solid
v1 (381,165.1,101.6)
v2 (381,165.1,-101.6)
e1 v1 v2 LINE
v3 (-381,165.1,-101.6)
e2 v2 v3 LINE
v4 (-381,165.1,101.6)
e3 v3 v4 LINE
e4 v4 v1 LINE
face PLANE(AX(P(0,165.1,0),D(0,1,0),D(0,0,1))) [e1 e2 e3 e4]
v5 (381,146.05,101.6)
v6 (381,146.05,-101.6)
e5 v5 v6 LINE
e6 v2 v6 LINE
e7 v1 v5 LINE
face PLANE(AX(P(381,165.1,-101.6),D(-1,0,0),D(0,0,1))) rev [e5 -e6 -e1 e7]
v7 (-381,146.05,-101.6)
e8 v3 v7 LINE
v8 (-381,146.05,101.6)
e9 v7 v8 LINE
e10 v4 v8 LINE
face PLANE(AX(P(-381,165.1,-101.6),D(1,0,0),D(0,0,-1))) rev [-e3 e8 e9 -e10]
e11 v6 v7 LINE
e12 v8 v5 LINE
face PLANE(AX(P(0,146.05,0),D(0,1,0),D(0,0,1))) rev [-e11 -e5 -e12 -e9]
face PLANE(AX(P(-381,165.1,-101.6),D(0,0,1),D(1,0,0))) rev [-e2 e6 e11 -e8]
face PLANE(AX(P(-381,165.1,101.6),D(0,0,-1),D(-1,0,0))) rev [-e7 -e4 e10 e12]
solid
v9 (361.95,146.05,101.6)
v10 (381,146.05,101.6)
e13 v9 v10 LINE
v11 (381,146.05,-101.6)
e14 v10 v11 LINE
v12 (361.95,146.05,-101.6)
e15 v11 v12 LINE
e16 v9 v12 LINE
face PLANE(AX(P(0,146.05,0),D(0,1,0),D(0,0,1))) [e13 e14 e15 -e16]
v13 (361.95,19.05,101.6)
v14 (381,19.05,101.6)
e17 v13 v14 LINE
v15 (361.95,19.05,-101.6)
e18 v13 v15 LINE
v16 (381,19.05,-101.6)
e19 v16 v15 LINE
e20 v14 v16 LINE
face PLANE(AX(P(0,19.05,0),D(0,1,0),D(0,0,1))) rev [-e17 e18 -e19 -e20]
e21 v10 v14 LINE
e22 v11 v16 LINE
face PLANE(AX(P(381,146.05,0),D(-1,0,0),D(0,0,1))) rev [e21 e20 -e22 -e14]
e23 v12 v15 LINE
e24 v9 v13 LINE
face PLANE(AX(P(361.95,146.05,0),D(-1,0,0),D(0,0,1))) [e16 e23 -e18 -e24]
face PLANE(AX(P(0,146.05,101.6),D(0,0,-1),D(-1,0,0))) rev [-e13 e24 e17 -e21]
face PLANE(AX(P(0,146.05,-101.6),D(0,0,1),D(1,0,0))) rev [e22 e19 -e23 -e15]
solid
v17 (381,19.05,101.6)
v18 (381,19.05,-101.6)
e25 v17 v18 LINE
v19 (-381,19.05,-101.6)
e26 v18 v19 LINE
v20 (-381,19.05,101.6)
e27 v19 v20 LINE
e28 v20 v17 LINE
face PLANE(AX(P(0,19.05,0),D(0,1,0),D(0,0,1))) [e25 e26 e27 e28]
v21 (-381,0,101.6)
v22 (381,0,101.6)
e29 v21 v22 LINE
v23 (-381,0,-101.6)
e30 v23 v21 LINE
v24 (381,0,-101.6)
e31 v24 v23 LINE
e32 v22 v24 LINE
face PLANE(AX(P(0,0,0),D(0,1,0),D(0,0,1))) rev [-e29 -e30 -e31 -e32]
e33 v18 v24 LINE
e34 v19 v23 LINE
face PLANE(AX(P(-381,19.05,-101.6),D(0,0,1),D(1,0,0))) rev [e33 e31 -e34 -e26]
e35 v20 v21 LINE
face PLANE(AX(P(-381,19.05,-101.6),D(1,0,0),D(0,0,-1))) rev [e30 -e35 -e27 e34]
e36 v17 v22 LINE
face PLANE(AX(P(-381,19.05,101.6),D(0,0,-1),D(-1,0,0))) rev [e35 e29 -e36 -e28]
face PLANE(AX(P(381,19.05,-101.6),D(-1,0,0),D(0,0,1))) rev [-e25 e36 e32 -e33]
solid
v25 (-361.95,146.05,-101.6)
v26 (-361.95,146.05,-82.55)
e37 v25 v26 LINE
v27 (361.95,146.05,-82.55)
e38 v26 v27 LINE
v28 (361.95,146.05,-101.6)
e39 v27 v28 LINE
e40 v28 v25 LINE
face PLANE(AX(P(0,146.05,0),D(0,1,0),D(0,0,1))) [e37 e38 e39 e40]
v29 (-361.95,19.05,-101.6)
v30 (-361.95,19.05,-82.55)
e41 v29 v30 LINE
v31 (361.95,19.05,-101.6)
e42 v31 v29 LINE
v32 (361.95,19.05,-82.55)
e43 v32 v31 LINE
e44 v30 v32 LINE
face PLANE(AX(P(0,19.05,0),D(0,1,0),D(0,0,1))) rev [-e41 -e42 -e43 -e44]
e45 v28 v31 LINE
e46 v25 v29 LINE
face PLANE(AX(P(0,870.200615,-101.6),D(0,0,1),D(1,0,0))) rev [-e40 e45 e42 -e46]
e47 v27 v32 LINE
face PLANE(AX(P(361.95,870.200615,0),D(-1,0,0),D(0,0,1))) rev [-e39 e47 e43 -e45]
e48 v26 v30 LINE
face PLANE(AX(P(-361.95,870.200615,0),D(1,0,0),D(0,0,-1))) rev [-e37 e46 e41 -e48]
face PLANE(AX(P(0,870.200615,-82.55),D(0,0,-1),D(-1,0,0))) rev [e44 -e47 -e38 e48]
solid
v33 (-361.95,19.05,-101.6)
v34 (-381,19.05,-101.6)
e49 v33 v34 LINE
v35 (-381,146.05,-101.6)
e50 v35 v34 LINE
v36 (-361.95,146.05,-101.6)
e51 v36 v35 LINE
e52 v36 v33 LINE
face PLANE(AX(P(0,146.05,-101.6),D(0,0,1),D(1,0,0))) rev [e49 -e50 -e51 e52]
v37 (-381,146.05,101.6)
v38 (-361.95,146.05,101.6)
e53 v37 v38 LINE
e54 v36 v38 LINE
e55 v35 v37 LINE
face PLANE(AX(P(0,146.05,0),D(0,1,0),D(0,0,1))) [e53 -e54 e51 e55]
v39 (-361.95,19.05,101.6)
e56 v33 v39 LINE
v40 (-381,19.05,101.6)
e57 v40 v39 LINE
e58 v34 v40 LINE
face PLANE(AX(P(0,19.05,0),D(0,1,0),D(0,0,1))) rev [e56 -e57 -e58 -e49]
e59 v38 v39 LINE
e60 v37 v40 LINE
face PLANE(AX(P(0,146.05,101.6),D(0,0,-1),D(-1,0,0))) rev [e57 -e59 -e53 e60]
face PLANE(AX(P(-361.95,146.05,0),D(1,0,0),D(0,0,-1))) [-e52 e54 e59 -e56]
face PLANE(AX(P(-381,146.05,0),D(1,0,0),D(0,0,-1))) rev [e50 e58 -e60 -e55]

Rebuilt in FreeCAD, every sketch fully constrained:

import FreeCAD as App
import Part
import Sketcher

V = App.Vector
Q = App.Units.Quantity

doc = App.newDocument("Part")
params = doc.addObject("Spreadsheet::Sheet", "Params")
for row, (alias, value) in enumerate([
    ("sketch1_width", "30 in"),
    ("sketch1_height", "8 in"),
    ("pad1_length", "0.75 in"),
    ("sketch2_height", "8 in"),
    ("sketch2_width", "0.75 in"),
    ("pad2_length", "5 in"),
    ("sketch3_height", "8 in"),
    ("sketch3_width", "0.75 in"),
    ("pad3_length", "5 in"),
    ("sketch4_width", "28.5 in"),
    ("sketch4_height", "0.75 in"),
    ("pad4_length", "5 in"),
    ("sketch5_width", "30 in"),
    ("sketch5_height", "8 in"),
    ("pad5_length", "0.75 in"),
], start=1):
    params.set(f"A{row}", alias)
    params.set(f"B{row}", "=" + value)
    params.setAlias(f"B{row}", alias)

body = doc.addObject("PartDesign::Body", "Body")

# Sketch on XZ plane
sketch1 = body.newObject("Sketcher::SketchObject", "Sketch")
sketch1.AttachmentSupport = (doc.getObject("XZ_Plane"), [""])
sketch1.MapMode = "FlatFace"
sketch1.addGeometry([
    Part.LineSegment(V(-381, -102, 0), V(-381, 102, 0)),
    Part.LineSegment(V(-381, 102, 0), V(381, 102, 0)),
    Part.LineSegment(V(381, 102, 0), V(381, -102, 0)),
    Part.LineSegment(V(381, -102, 0), V(-381, -102, 0)),
], False)
sketch1.addConstraint([
    Sketcher.Constraint("Coincident", 0, 2, 1, 1),
    Sketcher.Constraint("Coincident", 1, 2, 2, 1),
    Sketcher.Constraint("Coincident", 2, 2, 3, 1),
    Sketcher.Constraint("Coincident", 3, 2, 0, 1),
    Sketcher.Constraint("Vertical", 0),
    Sketcher.Constraint("Horizontal", 1),
    Sketcher.Constraint("Vertical", 2),
    Sketcher.Constraint("Horizontal", 3),
    Sketcher.Constraint("Symmetric", 0, 2, 2, 2, -1, 1),
    Sketcher.Constraint("DistanceX", 1, 1, 1, 2, Q("30 in")),
    Sketcher.Constraint("DistanceY", 0, 1, 0, 2, Q("8 in")),
])
sketch1.setExpression("Constraints[9]", "Params.sketch1_width")
sketch1.setExpression("Constraints[10]", "Params.sketch1_height")
pad1 = body.newObject("PartDesign::Pad", "Pad")
pad1.Profile = sketch1
pad1.setExpression("Length", "Params.pad1_length")
pad1.Reversed = True
body2 = doc.addObject("PartDesign::Body", "Body001")

# Sketch on XZ plane
sketch2 = body2.newObject("Sketcher::SketchObject", "Sketch001")
sketch2.AttachmentSupport = (doc.getObject("XZ_Plane001"), [""])
sketch2.MapMode = "FlatFace"
sketch2.AttachmentOffset = App.Placement(V(0, 0, -0.75 * 25.4), App.Rotation())
sketch2.addGeometry([
    Part.LineSegment(V(-362, -102, 0), V(-381, -102, 0)),
    Part.LineSegment(V(-381, -102, 0), V(-381, 102, 0)),
    Part.LineSegment(V(-381, 102, 0), V(-362, 102, 0)),
    Part.LineSegment(V(-362, 102, 0), V(-362, -102, 0)),
], False)
sketch2.addConstraint([
    Sketcher.Constraint("Coincident", 0, 2, 1, 1),
    Sketcher.Constraint("Coincident", 1, 2, 2, 1),
    Sketcher.Constraint("Coincident", 2, 2, 3, 1),
    Sketcher.Constraint("Coincident", 3, 2, 0, 1),
    Sketcher.Constraint("Horizontal", 0),
    Sketcher.Constraint("Vertical", 1),
    Sketcher.Constraint("Horizontal", 2),
    Sketcher.Constraint("Vertical", 3),
    Sketcher.Constraint("DistanceY", 1, 1, 1, 2, Q("8 in")),
    Sketcher.Constraint("DistanceX", 0, 2, -1, 1, Q("15 in")),
    Sketcher.Constraint("DistanceY", 0, 2, -1, 1, Q("4 in")),
    Sketcher.Constraint("DistanceX", 0, 2, 0, 1, Q("0.75 in")),
])
sketch2.setExpression("Constraints[8]", "Params.sketch2_height")
sketch2.setExpression("Constraints[11]", "Params.sketch2_width")
pad2 = body2.newObject("PartDesign::Pad", "Pad001")
pad2.Profile = sketch2
pad2.setExpression("Length", "Params.pad2_length")
pad2.Reversed = True
body3 = doc.addObject("PartDesign::Body", "Body002")

# Sketch on XZ plane
sketch3 = body3.newObject("Sketcher::SketchObject", "Sketch002")
sketch3.AttachmentSupport = (doc.getObject("XZ_Plane002"), [""])
sketch3.MapMode = "FlatFace"
sketch3.AttachmentOffset = App.Placement(V(0, 0, -0.75 * 25.4), App.Rotation())
sketch3.addGeometry([
    Part.LineSegment(V(381, -102, 0), V(362, -102, 0)),
    Part.LineSegment(V(362, -102, 0), V(362, 102, 0)),
    Part.LineSegment(V(362, 102, 0), V(381, 102, 0)),
    Part.LineSegment(V(381, 102, 0), V(381, -102, 0)),
], False)
sketch3.addConstraint([
    Sketcher.Constraint("Coincident", 0, 2, 1, 1),
    Sketcher.Constraint("Coincident", 1, 2, 2, 1),
    Sketcher.Constraint("Coincident", 2, 2, 3, 1),
    Sketcher.Constraint("Coincident", 3, 2, 0, 1),
    Sketcher.Constraint("Horizontal", 0),
    Sketcher.Constraint("Vertical", 1),
    Sketcher.Constraint("Horizontal", 2),
    Sketcher.Constraint("Vertical", 3),
    Sketcher.Constraint("DistanceY", 1, 1, 1, 2, Q("8 in")),
    Sketcher.Constraint("DistanceY", 0, 2, -1, 1, Q("4 in")),
    Sketcher.Constraint("DistanceX", -1, 1, 2, 2, Q("15 in")),
    Sketcher.Constraint("DistanceX", 0, 2, 0, 1, Q("0.75 in")),
])
sketch3.setExpression("Constraints[8]", "Params.sketch3_height")
sketch3.setExpression("Constraints[11]", "Params.sketch3_width")
pad3 = body3.newObject("PartDesign::Pad", "Pad002")
pad3.Profile = sketch3
pad3.setExpression("Length", "Params.pad3_length")
pad3.Reversed = True
body4 = doc.addObject("PartDesign::Body", "Body003")

# Sketch on XZ plane
sketch4 = body4.newObject("Sketcher::SketchObject", "Sketch003")
sketch4.AttachmentSupport = (doc.getObject("XZ_Plane003"), [""])
sketch4.MapMode = "FlatFace"
sketch4.AttachmentOffset = App.Placement(V(0, 0, -0.75 * 25.4), App.Rotation())
sketch4.addGeometry([
    Part.LineSegment(V(-362, -102, 0), V(-362, -83, 0)),
    Part.LineSegment(V(-362, -83, 0), V(362, -83, 0)),
    Part.LineSegment(V(362, -83, 0), V(362, -102, 0)),
    Part.LineSegment(V(362, -102, 0), V(-362, -102, 0)),
], False)
sketch4.addConstraint([
    Sketcher.Constraint("Coincident", 0, 2, 1, 1),
    Sketcher.Constraint("Coincident", 1, 2, 2, 1),
    Sketcher.Constraint("Coincident", 2, 2, 3, 1),
    Sketcher.Constraint("Coincident", 3, 2, 0, 1),
    Sketcher.Constraint("Vertical", 0),
    Sketcher.Constraint("Horizontal", 1),
    Sketcher.Constraint("Vertical", 2),
    Sketcher.Constraint("Horizontal", 3),
    Sketcher.Constraint("DistanceX", 1, 1, 1, 2, Q("28.5 in")),
    Sketcher.Constraint("DistanceY", 2, 2, -1, 1, Q("4 in")),
    Sketcher.Constraint("DistanceY", 0, 1, 0, 2, Q("0.75 in")),
    Sketcher.Constraint("DistanceX", 0, 2, -1, 1, Q("14.25 in")),
])
sketch4.setExpression("Constraints[8]", "Params.sketch4_width")
sketch4.setExpression("Constraints[10]", "Params.sketch4_height")
pad4 = body4.newObject("PartDesign::Pad", "Pad003")
pad4.Profile = sketch4
pad4.setExpression("Length", "Params.pad4_length")
pad4.Reversed = True
body5 = doc.addObject("PartDesign::Body", "Body004")

# Sketch on XZ plane
sketch5 = body5.newObject("Sketcher::SketchObject", "Sketch004")
sketch5.AttachmentSupport = (doc.getObject("XZ_Plane004"), [""])
sketch5.MapMode = "FlatFace"
sketch5.AttachmentOffset = App.Placement(V(0, 0, -5.75 * 25.4), App.Rotation())
sketch5.addGeometry([
    Part.LineSegment(V(-381, -102, 0), V(-381, 102, 0)),
    Part.LineSegment(V(-381, 102, 0), V(381, 102, 0)),
    Part.LineSegment(V(381, 102, 0), V(381, -102, 0)),
    Part.LineSegment(V(381, -102, 0), V(-381, -102, 0)),
], False)
sketch5.addConstraint([
    Sketcher.Constraint("Coincident", 0, 2, 1, 1),
    Sketcher.Constraint("Coincident", 1, 2, 2, 1),
    Sketcher.Constraint("Coincident", 2, 2, 3, 1),
    Sketcher.Constraint("Coincident", 3, 2, 0, 1),
    Sketcher.Constraint("Vertical", 0),
    Sketcher.Constraint("Horizontal", 1),
    Sketcher.Constraint("Vertical", 2),
    Sketcher.Constraint("Horizontal", 3),
    Sketcher.Constraint("Symmetric", 0, 2, 2, 2, -1, 1),
    Sketcher.Constraint("DistanceX", 1, 1, 1, 2, Q("30 in")),
    Sketcher.Constraint("DistanceY", 0, 1, 0, 2, Q("8 in")),
])
sketch5.setExpression("Constraints[9]", "Params.sketch5_width")
sketch5.setExpression("Constraints[10]", "Params.sketch5_height")
pad5 = body5.newObject("PartDesign::Pad", "Pad004")
pad5.Profile = sketch5
pad5.setExpression("Length", "Params.pad5_length")
pad5.Reversed = True

doc.recompute()
